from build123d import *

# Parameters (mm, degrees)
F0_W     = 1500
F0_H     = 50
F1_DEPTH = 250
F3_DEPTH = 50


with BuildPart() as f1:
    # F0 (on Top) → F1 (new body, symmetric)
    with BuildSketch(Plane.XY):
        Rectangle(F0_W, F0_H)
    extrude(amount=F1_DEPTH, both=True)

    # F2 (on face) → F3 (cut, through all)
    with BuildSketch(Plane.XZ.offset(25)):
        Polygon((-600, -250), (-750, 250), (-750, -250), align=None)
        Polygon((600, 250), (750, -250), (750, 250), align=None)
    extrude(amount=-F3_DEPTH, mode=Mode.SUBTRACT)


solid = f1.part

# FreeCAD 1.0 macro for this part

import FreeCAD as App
import Part
import Sketcher
from FreeCAD import Vector

doc = App.newDocument("Part")
body = doc.addObject("PartDesign::Body", "Body")

sketch1 = body.newObject("Sketcher::SketchObject", "Sketch")
sketch1.AttachmentSupport = (doc.getObject("XY_Plane"), [""])
sketch1.MapMode = "FlatFace"
sketch1.addGeometry([
    Part.LineSegment(Vector(-750, 25, 0), Vector(-750, -25, 0)),
    Part.LineSegment(Vector(-750, -25, 0), Vector(750, -25, 0)),
    Part.LineSegment(Vector(750, -25, 0), Vector(750, 25, 0)),
    Part.LineSegment(Vector(750, 25, 0), Vector(-750, 25, 0)),
], False)
sketch1.addConstraint([
    Sketcher.Constraint("Coincident", 0, 2, 1, 1),
    Sketcher.Constraint("Coincident", 1, 2, 2, 1),
    Sketcher.Constraint("Coincident", 2, 2, 3, 1),
    Sketcher.Constraint("Coincident", 3, 2, 0, 1),
    Sketcher.Constraint("Vertical", 0),
    Sketcher.Constraint("Horizontal", 1),
    Sketcher.Constraint("Vertical", 2),
    Sketcher.Constraint("Horizontal", 3),
    Sketcher.Constraint("Symmetric", 0, 2, 2, 2, -1, 1),
    Sketcher.Constraint("DistanceX", 1, 1, 1, 2, 1500.0),
    Sketcher.Constraint("DistanceY", 0, 2, 0, 1, 50.0),
])
pad1 = body.newObject("PartDesign::Pad", "Pad")
pad1.Profile = sketch1
pad1.Length = 500
pad1.Midplane = True

sketch2 = body.newObject("Sketcher::SketchObject", "Sketch001")
sketch2.AttachmentSupport = (doc.getObject("XZ_Plane"), [""])
sketch2.MapMode = "FlatFace"
sketch2.AttachmentOffset = App.Placement(Vector(0, 0, 25), App.Rotation())
sketch2.addGeometry([
    Part.LineSegment(Vector(-600, -250, 0), Vector(-750, 250, 0)),
    Part.LineSegment(Vector(-750, 250, 0), Vector(-750, -250, 0)),
    Part.LineSegment(Vector(-750, -250, 0), Vector(-600, -250, 0)),
    Part.LineSegment(Vector(600, 250, 0), Vector(750, -250, 0)),
    Part.LineSegment(Vector(750, -250, 0), Vector(750, 250, 0)),
    Part.LineSegment(Vector(750, 250, 0), Vector(600, 250, 0)),
], False)
sketch2.addConstraint([
    Sketcher.Constraint("Coincident", 0, 2, 1, 1),
    Sketcher.Constraint("Coincident", 1, 2, 2, 1),
    Sketcher.Constraint("Coincident", 2, 2, 0, 1),
    Sketcher.Constraint("Coincident", 3, 2, 4, 1),
    Sketcher.Constraint("Coincident", 4, 2, 5, 1),
    Sketcher.Constraint("Coincident", 5, 2, 3, 1),
    Sketcher.Constraint("Vertical", 1),
    Sketcher.Constraint("Horizontal", 2),
    Sketcher.Constraint("Vertical", 4),
    Sketcher.Constraint("Horizontal", 5),
    Sketcher.Constraint("Symmetric", 0, 2, 3, 2, -1, 1),
    Sketcher.Constraint("Symmetric", 2, 2, 5, 2, -1, 1),
    Sketcher.Constraint("Horizontal", 2, 2, 3, 2),
    Sketcher.Constraint("DistanceX", 2, 1, 2, 2, 150.0),
    Sketcher.Constraint("DistanceY", 1, 2, 1, 1, 500.0),
    Sketcher.Constraint("DistanceX", 0, 2, -1, 1, 750.0),
])
pocket1 = body.newObject("PartDesign::Pocket", "Pocket")
pocket1.Profile = sketch2
pocket1.Type = "ThroughAll"

doc.recompute()
